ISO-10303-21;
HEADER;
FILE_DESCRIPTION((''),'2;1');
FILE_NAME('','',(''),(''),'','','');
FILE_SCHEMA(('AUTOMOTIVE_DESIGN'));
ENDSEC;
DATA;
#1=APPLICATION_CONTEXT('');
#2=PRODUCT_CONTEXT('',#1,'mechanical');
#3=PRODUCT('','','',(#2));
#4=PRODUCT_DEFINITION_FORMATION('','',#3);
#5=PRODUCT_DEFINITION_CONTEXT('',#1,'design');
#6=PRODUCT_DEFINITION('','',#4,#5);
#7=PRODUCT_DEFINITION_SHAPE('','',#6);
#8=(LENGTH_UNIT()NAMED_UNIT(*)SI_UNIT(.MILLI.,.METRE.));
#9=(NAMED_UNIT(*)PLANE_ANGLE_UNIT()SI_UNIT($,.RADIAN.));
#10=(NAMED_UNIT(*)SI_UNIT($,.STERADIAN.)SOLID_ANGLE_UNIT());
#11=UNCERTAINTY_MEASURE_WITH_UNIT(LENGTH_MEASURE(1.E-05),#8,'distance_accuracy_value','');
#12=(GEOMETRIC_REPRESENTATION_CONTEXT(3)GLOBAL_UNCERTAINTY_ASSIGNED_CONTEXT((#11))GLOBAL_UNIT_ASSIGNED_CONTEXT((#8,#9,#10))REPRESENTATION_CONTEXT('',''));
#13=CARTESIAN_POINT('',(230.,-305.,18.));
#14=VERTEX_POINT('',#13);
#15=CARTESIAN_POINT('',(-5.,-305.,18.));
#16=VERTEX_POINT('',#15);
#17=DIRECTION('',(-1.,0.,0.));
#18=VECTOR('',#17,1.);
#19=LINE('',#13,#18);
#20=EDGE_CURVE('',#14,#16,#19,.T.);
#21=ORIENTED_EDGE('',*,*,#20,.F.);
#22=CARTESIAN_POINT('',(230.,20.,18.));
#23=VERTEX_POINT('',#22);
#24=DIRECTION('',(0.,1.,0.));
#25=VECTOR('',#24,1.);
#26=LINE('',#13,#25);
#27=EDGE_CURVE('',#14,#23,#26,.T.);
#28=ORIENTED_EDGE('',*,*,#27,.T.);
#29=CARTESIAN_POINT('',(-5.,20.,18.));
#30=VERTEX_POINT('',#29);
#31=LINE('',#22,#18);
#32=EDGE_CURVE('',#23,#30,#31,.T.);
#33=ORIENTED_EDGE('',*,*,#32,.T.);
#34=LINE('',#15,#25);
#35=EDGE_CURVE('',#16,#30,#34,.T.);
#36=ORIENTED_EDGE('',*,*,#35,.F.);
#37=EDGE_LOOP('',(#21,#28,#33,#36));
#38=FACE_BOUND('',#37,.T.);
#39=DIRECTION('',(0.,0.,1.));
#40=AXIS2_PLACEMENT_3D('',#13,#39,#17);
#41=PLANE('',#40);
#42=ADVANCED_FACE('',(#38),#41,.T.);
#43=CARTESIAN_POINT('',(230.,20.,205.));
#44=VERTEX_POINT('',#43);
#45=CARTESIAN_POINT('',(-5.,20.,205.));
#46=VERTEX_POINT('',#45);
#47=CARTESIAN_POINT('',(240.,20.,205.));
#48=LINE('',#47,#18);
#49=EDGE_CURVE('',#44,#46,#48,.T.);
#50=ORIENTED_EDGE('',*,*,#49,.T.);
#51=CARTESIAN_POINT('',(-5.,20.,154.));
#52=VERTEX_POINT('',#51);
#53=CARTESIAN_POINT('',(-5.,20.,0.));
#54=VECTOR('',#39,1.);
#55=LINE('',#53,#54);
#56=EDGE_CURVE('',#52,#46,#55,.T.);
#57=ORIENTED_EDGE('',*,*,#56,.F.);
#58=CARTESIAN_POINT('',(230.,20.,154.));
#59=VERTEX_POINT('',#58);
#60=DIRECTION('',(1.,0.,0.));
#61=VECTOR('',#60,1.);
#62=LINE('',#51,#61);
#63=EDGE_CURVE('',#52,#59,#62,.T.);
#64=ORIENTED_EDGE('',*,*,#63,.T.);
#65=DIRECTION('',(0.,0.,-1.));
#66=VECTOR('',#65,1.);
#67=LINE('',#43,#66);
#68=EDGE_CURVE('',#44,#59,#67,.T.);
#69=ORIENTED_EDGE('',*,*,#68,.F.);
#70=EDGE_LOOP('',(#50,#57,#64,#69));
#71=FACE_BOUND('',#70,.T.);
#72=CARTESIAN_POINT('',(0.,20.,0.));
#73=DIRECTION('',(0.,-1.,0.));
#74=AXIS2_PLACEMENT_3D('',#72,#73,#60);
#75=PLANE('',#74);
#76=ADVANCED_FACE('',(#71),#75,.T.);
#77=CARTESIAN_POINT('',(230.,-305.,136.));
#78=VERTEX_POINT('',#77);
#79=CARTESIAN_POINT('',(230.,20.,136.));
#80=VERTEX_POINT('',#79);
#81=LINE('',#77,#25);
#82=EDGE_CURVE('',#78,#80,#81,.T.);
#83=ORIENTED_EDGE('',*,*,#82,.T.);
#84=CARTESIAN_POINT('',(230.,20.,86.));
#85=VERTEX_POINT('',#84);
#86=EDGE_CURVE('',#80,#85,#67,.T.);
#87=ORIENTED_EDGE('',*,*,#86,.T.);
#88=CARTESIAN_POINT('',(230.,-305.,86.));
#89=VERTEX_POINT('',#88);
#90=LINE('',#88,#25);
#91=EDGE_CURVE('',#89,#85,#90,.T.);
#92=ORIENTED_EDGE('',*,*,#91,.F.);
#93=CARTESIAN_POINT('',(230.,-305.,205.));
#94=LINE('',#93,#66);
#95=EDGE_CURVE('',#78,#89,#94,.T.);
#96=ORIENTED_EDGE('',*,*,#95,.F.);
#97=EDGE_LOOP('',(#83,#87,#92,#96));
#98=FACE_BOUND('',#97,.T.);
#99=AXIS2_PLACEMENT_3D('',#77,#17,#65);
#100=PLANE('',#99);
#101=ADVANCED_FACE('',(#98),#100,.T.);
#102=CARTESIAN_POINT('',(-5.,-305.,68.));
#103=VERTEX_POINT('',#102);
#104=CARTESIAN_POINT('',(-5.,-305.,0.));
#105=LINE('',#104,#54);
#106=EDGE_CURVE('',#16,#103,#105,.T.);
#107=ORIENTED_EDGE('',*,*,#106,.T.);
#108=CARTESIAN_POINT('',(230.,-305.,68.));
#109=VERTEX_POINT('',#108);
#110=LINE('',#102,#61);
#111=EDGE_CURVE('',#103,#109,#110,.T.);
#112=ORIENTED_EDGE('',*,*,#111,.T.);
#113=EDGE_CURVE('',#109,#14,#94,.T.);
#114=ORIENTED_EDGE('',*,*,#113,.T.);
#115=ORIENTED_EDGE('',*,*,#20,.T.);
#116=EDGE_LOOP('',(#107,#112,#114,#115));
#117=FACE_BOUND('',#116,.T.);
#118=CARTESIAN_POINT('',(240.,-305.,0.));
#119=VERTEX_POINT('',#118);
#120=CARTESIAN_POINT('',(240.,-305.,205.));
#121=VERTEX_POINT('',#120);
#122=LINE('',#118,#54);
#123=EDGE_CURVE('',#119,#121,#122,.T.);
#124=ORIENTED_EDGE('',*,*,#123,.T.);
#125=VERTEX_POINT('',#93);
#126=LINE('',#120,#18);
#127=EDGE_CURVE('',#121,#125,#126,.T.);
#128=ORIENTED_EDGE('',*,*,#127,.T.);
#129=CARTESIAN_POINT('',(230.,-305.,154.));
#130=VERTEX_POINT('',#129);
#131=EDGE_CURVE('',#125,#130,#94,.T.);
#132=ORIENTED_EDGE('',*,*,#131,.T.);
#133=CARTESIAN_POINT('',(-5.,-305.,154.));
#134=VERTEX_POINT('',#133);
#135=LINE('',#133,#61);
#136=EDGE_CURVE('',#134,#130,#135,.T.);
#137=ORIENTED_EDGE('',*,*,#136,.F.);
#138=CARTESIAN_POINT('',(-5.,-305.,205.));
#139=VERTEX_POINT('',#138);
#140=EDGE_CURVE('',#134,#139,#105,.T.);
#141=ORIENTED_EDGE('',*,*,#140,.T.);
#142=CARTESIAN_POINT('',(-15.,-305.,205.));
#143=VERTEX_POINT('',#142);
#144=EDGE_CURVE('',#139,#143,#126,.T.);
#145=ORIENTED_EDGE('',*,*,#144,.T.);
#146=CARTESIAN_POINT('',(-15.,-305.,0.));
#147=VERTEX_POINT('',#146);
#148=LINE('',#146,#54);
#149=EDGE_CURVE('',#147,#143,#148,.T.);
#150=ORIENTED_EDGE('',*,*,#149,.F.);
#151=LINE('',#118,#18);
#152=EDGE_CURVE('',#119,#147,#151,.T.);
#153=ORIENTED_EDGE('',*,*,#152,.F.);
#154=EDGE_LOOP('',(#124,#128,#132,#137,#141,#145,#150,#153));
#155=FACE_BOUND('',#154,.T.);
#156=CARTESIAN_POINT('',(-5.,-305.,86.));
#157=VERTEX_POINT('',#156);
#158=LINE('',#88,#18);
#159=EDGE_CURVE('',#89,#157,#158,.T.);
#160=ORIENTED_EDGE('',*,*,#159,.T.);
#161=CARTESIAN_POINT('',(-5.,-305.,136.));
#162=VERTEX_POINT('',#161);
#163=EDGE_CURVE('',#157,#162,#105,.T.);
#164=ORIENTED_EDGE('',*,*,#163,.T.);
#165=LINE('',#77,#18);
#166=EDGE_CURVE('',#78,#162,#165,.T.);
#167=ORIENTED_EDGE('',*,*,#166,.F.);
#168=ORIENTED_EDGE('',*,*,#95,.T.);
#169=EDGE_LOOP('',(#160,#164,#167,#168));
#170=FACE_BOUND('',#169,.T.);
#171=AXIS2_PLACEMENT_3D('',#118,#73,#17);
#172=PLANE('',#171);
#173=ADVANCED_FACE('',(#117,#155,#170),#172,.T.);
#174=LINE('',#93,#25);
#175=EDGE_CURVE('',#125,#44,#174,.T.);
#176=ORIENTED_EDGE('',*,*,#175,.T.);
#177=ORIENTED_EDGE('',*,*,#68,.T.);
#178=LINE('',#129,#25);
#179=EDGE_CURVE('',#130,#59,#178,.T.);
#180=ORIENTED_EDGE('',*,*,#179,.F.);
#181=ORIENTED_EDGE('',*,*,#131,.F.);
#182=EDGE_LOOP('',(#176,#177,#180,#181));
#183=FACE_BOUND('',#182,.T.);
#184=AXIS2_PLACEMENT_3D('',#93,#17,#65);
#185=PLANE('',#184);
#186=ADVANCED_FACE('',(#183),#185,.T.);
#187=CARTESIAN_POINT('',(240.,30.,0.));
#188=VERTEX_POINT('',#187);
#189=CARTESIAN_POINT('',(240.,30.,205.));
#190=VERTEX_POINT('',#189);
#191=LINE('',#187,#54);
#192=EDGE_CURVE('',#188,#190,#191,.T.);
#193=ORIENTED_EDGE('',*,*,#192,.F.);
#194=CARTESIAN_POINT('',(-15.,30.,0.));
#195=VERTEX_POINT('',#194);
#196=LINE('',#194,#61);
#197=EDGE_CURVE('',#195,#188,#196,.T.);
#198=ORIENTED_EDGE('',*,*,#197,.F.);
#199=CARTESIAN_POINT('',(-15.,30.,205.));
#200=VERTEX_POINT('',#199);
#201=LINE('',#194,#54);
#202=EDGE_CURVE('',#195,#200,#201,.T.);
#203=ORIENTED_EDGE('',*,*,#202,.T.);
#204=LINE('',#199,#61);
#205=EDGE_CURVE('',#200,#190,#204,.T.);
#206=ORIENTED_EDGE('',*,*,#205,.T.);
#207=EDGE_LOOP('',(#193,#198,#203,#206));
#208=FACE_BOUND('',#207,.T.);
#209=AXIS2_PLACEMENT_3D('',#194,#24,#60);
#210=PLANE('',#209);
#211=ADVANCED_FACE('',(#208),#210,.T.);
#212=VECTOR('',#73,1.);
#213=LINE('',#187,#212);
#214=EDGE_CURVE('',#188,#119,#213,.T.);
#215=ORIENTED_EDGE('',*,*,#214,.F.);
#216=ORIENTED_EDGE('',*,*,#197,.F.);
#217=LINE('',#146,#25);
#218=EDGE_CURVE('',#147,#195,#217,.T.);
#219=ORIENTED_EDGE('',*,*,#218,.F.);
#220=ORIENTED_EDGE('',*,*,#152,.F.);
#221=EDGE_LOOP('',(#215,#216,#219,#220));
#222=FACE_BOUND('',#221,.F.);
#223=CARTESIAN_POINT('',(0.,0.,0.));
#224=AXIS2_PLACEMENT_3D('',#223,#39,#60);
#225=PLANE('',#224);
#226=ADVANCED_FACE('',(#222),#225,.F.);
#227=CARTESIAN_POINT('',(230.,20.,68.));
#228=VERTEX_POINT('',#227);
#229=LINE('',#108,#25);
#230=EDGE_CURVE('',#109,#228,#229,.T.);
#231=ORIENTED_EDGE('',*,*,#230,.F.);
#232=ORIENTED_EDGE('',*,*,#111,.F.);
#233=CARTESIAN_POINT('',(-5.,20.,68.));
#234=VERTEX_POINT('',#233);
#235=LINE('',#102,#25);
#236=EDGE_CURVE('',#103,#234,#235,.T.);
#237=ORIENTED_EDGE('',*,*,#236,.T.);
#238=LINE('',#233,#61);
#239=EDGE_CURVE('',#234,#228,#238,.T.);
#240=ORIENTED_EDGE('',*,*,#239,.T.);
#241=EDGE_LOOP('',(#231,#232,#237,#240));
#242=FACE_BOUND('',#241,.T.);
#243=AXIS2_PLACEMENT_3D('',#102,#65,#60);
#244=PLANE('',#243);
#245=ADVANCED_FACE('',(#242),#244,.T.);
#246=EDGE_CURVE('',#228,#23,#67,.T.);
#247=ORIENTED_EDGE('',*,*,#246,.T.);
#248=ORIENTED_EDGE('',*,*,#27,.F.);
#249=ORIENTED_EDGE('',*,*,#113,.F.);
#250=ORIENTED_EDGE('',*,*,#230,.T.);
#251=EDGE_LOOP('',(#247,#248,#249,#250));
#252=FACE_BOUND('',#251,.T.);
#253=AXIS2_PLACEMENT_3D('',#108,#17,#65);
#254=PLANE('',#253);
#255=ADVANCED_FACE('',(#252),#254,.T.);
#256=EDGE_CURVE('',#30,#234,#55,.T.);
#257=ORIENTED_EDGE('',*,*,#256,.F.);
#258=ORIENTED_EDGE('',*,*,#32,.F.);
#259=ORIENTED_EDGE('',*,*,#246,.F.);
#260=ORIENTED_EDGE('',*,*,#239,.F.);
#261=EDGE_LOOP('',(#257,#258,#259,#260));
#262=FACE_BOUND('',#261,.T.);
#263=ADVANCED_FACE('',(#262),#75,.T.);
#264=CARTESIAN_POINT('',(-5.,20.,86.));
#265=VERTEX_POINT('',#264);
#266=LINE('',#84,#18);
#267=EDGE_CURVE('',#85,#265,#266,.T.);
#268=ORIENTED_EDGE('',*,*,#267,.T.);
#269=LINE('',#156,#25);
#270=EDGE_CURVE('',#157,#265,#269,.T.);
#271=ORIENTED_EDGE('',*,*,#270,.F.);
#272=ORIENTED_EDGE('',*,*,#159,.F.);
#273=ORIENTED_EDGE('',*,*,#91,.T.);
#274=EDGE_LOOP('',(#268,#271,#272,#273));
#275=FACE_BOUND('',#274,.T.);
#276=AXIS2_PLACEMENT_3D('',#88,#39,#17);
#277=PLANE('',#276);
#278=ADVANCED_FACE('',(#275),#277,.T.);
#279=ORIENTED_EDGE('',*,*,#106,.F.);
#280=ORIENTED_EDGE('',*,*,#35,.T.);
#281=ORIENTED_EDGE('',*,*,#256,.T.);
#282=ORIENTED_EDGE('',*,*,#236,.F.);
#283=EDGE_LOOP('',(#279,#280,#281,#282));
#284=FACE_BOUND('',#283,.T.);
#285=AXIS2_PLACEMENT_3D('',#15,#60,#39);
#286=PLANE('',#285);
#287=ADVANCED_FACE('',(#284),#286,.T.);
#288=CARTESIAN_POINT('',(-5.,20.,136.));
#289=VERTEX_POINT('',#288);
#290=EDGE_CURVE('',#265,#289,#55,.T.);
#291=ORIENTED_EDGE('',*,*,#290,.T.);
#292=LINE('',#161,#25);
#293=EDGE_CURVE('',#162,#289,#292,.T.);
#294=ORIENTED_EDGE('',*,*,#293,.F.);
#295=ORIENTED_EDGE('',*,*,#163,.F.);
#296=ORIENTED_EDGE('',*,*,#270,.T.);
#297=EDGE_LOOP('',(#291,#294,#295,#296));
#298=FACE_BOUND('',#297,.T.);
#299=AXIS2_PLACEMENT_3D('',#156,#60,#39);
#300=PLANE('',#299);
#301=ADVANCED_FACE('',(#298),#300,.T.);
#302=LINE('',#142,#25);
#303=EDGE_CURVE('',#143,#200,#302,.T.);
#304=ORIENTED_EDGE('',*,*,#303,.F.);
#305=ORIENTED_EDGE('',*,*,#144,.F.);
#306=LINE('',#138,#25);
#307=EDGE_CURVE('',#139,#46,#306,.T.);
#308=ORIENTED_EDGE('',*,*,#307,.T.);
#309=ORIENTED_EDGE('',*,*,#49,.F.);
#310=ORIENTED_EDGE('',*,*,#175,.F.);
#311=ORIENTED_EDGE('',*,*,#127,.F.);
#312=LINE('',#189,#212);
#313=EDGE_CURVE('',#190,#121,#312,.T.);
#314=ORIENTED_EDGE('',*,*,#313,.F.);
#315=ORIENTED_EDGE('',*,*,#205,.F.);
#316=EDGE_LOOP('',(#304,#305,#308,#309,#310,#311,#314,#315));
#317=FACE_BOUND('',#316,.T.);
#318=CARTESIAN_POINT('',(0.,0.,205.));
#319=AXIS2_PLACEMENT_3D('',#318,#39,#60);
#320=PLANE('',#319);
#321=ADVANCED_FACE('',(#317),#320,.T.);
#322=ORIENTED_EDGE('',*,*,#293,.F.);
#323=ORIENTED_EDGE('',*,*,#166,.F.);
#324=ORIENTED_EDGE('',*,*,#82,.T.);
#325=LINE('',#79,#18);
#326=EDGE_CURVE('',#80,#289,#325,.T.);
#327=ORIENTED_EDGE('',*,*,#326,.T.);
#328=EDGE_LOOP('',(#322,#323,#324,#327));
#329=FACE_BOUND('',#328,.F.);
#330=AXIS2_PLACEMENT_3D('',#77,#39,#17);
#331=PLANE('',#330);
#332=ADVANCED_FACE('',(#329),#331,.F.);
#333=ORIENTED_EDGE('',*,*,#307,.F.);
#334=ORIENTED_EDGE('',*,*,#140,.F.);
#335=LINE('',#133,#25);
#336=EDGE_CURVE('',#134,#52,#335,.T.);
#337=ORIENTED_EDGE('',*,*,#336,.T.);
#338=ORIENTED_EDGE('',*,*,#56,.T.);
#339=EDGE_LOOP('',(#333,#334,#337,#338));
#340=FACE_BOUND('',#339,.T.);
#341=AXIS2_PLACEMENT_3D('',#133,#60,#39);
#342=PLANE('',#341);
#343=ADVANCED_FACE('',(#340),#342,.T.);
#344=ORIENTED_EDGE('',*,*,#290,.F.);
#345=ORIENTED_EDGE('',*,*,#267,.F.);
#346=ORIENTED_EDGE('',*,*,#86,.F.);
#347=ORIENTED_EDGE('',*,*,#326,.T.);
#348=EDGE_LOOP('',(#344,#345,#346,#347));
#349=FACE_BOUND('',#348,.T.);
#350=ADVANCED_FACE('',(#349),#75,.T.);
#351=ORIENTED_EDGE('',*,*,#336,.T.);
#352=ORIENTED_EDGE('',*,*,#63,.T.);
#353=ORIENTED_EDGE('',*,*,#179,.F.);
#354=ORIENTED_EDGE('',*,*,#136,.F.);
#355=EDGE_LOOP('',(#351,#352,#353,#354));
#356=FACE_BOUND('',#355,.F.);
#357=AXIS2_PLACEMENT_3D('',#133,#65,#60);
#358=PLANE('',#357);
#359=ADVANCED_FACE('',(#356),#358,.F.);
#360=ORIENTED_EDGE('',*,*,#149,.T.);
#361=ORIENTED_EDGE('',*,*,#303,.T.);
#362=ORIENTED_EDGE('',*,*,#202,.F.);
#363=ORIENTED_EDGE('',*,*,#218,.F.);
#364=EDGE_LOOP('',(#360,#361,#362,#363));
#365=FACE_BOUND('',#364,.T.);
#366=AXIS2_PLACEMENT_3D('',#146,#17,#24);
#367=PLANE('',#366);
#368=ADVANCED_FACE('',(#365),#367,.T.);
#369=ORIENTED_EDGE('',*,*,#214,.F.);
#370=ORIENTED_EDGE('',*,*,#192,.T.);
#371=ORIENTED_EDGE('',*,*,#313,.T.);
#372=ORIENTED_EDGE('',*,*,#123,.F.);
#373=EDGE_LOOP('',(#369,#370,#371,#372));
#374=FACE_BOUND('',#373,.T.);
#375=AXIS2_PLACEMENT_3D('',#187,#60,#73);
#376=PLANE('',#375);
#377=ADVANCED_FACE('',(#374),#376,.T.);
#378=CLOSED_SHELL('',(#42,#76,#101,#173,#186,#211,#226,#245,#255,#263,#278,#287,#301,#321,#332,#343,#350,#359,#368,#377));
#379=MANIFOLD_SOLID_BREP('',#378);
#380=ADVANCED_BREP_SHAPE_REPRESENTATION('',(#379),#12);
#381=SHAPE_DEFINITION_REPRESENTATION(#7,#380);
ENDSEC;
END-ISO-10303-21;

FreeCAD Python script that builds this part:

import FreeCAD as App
import Part
import Sketcher

V = App.Vector
Q = App.Units.Quantity


def add_polygon(sketch, points):
    """Adds a closed chain of lines whose ends are joined by coincident constraints."""
    first, n = sketch.GeometryCount, len(points)
    for a, b in zip(points, points[1:] + points[:1]):
        sketch.addGeometry(Part.LineSegment(App.Vector(*a, 0), App.Vector(*b, 0)), False)
    for i in range(n):
        sketch.addConstraint(Sketcher.Constraint("Coincident", first + i, 2, first + (i + 1) % n, 1))

doc = App.newDocument("Part")
params = doc.addObject("Spreadsheet::Sheet", "Params")
for row, (alias, value) in enumerate([
    ("sketch1_width", "255 mm"),
    ("sketch1_height", "335 mm"),
    ("pad1_length", "205 mm"),
    ("sketch2_width", "235 mm"),
    ("sketch2_height", "51 mm"),
    ("sketch2_height2", "50 mm"),
    ("pocket1_length", "325 mm"),
], start=1):
    params.set(f"A{row}", alias)
    params.set(f"B{row}", "=" + value)
    params.setAlias(f"B{row}", alias)

body = doc.addObject("PartDesign::Body", "Body")

sketch1 = body.newObject("Sketcher::SketchObject", "Sketch")
sketch1.AttachmentSupport = (doc.getObject("XY_Plane"), [""])
sketch1.MapMode = "FlatFace"
add_polygon(sketch1, [(240, 30), (-15, 30), (-15, -305), (240, -305)])
sketch1.addConstraint([
    Sketcher.Constraint("Horizontal", 0),
    Sketcher.Constraint("Vertical", 1),
    Sketcher.Constraint("Horizontal", 2),
    Sketcher.Constraint("Vertical", 3),
    Sketcher.Constraint("DistanceX", 0, 2, 0, 1, Q("255 mm")),
    Sketcher.Constraint("DistanceY", 1, 2, 1, 1, Q("335 mm")),
    Sketcher.Constraint("DistanceX", 0, 2, -1, 1, Q("15 mm")),
    Sketcher.Constraint("DistanceY", -1, 1, 0, 2, Q("30 mm")),
])
sketch1.setExpression("Constraints[8]", "Params.sketch1_width")
sketch1.setExpression("Constraints[9]", "Params.sketch1_height")
pad1 = body.newObject("PartDesign::Pad", "Pad")
pad1.Profile = sketch1
pad1.setExpression("Length", "Params.pad1_length")

sketch2 = body.newObject("Sketcher::SketchObject", "Sketch001")
sketch2.AttachmentSupport = (doc.getObject("XZ_Plane"), [""])
sketch2.MapMode = "FlatFace"
sketch2.AttachmentOffset = App.Placement(V(0, 0, 305), App.Rotation())
add_polygon(sketch2, [(230, 205), (-5, 205), (-5, 154), (230, 154)])
add_polygon(sketch2, [(230, 136), (-5, 136), (-5, 86), (230, 86)])
add_polygon(sketch2, [(-5, 68), (-5, 18), (230, 18), (230, 68)])
sketch2.addConstraint([
    Sketcher.Constraint("Horizontal", 0),
    Sketcher.Constraint("Vertical", 1),
    Sketcher.Constraint("Horizontal", 2),
    Sketcher.Constraint("Vertical", 3),
    Sketcher.Constraint("Horizontal", 4),
    Sketcher.Constraint("Vertical", 5),
    Sketcher.Constraint("Horizontal", 6),
    Sketcher.Constraint("Vertical", 7),
    Sketcher.Constraint("Vertical", 8),
    Sketcher.Constraint("Horizontal", 9),
    Sketcher.Constraint("Vertical", 10),
    Sketcher.Constraint("Horizontal", 11),
    Sketcher.Constraint("Vertical", 1, 2, 4, 2),
    Sketcher.Constraint("Vertical", 3, 2, 6, 2),
    Sketcher.Constraint("Vertical", 5, 2, 8, 2),
    Sketcher.Constraint("Vertical", 7, 2, 9, 2),
    Sketcher.Constraint("Equal", 7, 8),
    Sketcher.Constraint("DistanceX", 0, 2, 0, 1, Q("235 mm")),
    Sketcher.Constraint("DistanceY", 1, 2, 1, 1, Q("51 mm")),
    Sketcher.Constraint("DistanceY", 5, 2, 5, 1, Q("50 mm")),
    Sketcher.Constraint("DistanceY", -1, 1, 0, 2, Q("205 mm")),
    Sketcher.Constraint("DistanceY", -1, 1, 8, 2, Q("18 mm")),
    Sketcher.Constraint("DistanceY", 4, 2, 1, 2, Q("18 mm")),
    Sketcher.Constraint("DistanceX", 0, 2, -1, 1, Q("5 mm")),
])
sketch2.setExpression("Constraints[29]", "Params.sketch2_width")
sketch2.setExpression("Constraints[30]", "Params.sketch2_height")
sketch2.setExpression("Constraints[31]", "Params.sketch2_height2")
pocket1 = body.newObject("PartDesign::Pocket", "Pocket")
pocket1.Profile = sketch2
pocket1.setExpression("Length", "Params.pocket1_length")

doc.recompute()
